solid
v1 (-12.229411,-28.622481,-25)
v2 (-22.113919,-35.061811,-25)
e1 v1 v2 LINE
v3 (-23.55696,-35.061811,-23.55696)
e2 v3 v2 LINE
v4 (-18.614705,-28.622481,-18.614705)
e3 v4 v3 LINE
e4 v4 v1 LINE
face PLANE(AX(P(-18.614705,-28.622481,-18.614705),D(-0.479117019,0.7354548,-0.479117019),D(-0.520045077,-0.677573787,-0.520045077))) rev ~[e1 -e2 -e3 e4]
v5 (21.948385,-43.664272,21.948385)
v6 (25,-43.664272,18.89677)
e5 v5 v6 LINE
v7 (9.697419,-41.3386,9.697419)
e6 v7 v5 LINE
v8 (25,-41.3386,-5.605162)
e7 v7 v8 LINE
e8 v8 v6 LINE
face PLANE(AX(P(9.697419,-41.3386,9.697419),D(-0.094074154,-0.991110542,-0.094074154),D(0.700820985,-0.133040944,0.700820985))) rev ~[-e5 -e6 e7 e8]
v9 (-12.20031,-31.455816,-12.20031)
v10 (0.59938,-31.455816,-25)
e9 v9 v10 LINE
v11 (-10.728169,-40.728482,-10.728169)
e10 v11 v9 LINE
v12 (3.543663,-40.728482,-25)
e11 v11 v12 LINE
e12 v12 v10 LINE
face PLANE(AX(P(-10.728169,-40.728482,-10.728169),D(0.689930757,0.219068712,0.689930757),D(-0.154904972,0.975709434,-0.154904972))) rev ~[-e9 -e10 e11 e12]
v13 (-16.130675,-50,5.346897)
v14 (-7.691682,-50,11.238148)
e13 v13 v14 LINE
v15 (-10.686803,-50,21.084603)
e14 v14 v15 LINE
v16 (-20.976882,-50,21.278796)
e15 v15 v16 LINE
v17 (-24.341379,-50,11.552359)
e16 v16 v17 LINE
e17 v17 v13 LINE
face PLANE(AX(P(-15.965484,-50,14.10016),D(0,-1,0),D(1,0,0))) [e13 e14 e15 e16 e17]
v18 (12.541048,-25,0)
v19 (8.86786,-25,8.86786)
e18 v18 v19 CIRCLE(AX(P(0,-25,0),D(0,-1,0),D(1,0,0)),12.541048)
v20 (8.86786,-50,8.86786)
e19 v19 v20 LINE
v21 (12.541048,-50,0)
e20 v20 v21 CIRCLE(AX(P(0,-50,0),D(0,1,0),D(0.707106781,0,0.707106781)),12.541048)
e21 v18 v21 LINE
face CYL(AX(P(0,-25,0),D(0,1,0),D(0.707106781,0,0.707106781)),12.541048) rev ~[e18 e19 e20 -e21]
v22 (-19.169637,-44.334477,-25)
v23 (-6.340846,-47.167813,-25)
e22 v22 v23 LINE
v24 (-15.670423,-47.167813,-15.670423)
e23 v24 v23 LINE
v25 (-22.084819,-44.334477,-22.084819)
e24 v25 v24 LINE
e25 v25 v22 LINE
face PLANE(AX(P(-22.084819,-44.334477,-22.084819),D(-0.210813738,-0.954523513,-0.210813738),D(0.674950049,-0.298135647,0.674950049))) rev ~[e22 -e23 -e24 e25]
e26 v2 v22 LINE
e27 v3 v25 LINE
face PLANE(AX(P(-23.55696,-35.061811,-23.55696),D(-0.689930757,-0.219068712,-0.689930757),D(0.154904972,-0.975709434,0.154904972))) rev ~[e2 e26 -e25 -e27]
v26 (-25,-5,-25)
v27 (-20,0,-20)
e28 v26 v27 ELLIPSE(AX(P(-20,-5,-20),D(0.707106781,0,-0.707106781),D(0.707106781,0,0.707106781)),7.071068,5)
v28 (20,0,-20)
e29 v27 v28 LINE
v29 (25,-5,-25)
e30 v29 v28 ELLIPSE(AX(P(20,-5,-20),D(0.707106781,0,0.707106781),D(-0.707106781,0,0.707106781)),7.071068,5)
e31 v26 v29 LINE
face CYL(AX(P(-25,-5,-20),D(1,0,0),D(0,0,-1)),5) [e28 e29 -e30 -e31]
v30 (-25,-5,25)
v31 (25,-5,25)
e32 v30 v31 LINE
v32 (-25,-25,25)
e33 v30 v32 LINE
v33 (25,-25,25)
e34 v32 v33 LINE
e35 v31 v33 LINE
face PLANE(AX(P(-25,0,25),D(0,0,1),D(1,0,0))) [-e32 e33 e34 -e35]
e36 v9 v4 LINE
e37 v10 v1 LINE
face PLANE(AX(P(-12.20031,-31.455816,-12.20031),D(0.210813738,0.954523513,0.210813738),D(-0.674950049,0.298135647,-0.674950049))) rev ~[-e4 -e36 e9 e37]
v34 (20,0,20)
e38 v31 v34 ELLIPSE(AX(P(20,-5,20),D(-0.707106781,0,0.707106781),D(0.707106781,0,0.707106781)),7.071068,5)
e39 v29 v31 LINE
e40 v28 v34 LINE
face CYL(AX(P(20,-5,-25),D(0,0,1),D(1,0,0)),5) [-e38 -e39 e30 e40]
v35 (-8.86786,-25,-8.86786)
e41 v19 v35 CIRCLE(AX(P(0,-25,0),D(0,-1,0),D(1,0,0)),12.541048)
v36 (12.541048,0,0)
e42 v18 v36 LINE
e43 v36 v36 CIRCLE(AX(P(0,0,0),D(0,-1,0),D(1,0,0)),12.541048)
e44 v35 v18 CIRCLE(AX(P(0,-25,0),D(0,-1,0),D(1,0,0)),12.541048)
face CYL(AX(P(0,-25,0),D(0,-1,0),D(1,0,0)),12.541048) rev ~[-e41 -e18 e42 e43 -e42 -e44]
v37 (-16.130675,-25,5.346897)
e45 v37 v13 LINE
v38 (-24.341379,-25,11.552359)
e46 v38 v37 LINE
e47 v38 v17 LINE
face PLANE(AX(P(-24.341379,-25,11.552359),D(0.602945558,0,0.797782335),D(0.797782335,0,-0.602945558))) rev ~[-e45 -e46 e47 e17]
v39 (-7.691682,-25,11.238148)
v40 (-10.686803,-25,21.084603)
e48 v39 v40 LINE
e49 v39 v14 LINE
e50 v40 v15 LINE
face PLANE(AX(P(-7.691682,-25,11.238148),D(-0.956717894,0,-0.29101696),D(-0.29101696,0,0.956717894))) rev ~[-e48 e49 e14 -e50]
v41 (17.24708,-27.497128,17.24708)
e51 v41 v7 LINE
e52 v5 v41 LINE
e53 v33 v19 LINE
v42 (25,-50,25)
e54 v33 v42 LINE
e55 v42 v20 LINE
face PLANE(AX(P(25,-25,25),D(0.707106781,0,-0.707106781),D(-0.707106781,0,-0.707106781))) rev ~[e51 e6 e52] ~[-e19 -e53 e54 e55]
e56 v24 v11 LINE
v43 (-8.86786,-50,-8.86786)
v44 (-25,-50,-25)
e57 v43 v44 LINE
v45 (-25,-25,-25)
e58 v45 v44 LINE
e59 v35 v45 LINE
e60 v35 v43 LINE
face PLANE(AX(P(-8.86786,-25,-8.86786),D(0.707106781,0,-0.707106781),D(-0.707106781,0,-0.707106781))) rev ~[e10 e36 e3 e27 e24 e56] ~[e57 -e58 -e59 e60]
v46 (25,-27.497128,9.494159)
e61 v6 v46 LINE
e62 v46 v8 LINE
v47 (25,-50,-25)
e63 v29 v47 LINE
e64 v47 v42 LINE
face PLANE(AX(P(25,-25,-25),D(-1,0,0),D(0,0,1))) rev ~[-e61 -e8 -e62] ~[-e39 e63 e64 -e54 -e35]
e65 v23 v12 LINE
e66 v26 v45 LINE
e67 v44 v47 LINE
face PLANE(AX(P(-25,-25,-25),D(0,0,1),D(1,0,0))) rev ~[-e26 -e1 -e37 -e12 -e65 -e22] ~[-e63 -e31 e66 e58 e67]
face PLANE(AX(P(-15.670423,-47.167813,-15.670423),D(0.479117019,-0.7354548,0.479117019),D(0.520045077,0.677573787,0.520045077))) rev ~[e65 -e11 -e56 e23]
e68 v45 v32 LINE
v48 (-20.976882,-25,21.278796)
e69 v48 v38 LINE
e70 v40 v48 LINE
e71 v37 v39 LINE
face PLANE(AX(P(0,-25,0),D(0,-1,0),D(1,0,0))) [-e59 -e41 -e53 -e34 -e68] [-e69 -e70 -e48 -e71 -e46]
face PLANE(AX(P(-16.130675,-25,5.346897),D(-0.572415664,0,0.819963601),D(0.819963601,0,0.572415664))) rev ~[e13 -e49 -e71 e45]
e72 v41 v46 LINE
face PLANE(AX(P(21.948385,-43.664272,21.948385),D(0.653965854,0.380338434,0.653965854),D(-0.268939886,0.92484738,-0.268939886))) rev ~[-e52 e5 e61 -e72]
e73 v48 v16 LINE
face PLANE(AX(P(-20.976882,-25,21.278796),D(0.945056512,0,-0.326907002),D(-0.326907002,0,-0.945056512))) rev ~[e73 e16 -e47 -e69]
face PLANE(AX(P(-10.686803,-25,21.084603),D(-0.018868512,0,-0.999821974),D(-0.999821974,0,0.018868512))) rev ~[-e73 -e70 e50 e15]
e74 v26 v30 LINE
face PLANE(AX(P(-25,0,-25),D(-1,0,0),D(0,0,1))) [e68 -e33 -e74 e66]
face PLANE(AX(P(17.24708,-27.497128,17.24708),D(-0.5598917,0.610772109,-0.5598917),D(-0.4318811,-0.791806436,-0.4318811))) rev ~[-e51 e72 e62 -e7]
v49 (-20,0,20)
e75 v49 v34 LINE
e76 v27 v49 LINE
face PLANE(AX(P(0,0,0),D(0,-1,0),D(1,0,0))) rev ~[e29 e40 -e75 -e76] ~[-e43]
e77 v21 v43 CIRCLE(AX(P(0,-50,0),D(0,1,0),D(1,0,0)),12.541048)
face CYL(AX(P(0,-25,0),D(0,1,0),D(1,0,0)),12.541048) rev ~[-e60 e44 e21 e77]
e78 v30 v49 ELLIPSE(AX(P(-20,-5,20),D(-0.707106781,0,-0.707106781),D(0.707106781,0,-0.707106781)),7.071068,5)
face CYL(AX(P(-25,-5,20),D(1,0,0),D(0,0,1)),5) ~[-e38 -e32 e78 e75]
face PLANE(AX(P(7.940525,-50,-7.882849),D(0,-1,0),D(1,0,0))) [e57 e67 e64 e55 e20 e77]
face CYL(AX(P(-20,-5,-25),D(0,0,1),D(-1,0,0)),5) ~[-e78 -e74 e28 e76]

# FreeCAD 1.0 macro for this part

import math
import FreeCAD as App
import Part
import Sketcher

V = App.Vector
Q = App.Units.Quantity


def edges_at(feature, points):
    """Names of the edges that pass closest to the given points."""
    edges = feature.Shape.Edges
    near = lambda p: min(range(len(edges)), key=lambda i: edges[i].distToShape(Part.Vertex(*p))[0])
    return sorted({f"Edge{near(p) + 1}" for p in points})

doc = App.newDocument("Part")
body = doc.addObject("PartDesign::Body", "Body")

sketch1 = doc.addObject("Sketcher::SketchObject", "Sketch")
body.addObject(sketch1)
sketch1.AttachmentSupport = (doc.XZ_Plane, [""])
sketch1.MapMode = "FlatFace"
sketch1.addGeometry([
    Part.LineSegment(V(-25, 25, 0), V(-25, -25, 0)),
    Part.LineSegment(V(-25, -25, 0), V(25, -25, 0)),
    Part.LineSegment(V(25, -25, 0), V(25, 25, 0)),
    Part.LineSegment(V(25, 25, 0), V(-25, 25, 0)),
], False)
sketch1.addConstraint([
    Sketcher.Constraint("Coincident", 0, 2, 1, 1),
    Sketcher.Constraint("Coincident", 1, 2, 2, 1),
    Sketcher.Constraint("Coincident", 2, 2, 3, 1),
    Sketcher.Constraint("Coincident", 3, 2, 0, 1),
    Sketcher.Constraint("Vertical", 0),
    Sketcher.Constraint("Horizontal", 1),
    Sketcher.Constraint("Vertical", 2),
    Sketcher.Constraint("Horizontal", 3),
    Sketcher.Constraint("Symmetric", 0, 2, 2, 2, -1, 1),
    Sketcher.Constraint("Equal", 3, 0),
    Sketcher.Constraint("DistanceX", 1, 1, 1, 2, 50.0),
])
pad1 = doc.addObject("PartDesign::Pad", "Pad")
body.addObject(pad1)
pad1.Profile = sketch1
pad1.Length = 25

sketch2 = doc.addObject("Sketcher::SketchObject", "Sketch001")
body.addObject(sketch2)
sketch2.AttachmentSupport = (doc.XZ_Plane, [""])
sketch2.MapMode = "FlatFace"
sketch2.AttachmentOffset = App.Placement(V(0, 0, 25), App.Rotation())
sketch2.addGeometry(Part.Circle(V(0, 0, 0), V(0, 0, 1), 13), False)
sketch2.addConstraint([
    Sketcher.Constraint("Coincident", 0, 3, -1, 1),
    Sketcher.Constraint("Diameter", 0, 25.082095),
])
pocket1 = doc.addObject("PartDesign::Pocket", "Pocket")
body.addObject(pocket1)
pocket1.Profile = sketch2
pocket1.Length = 25

sketch3 = doc.addObject("Sketcher::SketchObject", "Sketch002")
body.addObject(sketch3)
sketch3.AttachmentSupport = (doc.XZ_Plane, [""])
sketch3.MapMode = "FlatFace"
sketch3.AttachmentOffset = App.Placement(V(0, 0, 25), App.Rotation())
sketch3.addGeometry([
    Part.LineSegment(V(-9, -9, 0), V(-25, -25, 0)),
    Part.LineSegment(V(-25, -25, 0), V(25, -25, 0)),
    Part.LineSegment(V(25, -25, 0), V(25, 25, 0)),
    Part.LineSegment(V(25, 25, 0), V(9, 9, 0)),
    Part.ArcOfCircle(Part.Circle(V(0, 0, 0), V(0, 0, 1), 13), math.radians(0), math.radians(45)),
    Part.ArcOfCircle(Part.Circle(V(0, 0, 0), V(0, 0, 1), 13), math.radians(-135), math.radians(0)),
], False)
sketch3.addConstraint([
    Sketcher.Constraint("Coincident", 0, 2, 1, 1),
    Sketcher.Constraint("Coincident", 1, 2, 2, 1),
    Sketcher.Constraint("Coincident", 2, 2, 3, 1),
    Sketcher.Constraint("Coincident", 3, 2, 4, 2),
    Sketcher.Constraint("Tangent", 4, 1, 5, 2),
    Sketcher.Constraint("Coincident", 5, 1, 0, 1),
    Sketcher.Constraint("Horizontal", 1),
    Sketcher.Constraint("Vertical", 2),
    Sketcher.Constraint("Coincident", 4, 3, -1, 1),
    Sketcher.Constraint("Equal", 4, 5),
    Sketcher.Constraint("Symmetric", 0, 2, 2, 2, -1, 1),
    Sketcher.Constraint("PointOnObject", 4, 1, -1),
    Sketcher.Constraint("Parallel", 0, 3),
    Sketcher.Constraint("Equal", 1, 2),
    Sketcher.Constraint("DistanceX", 1, 1, 1, 2, 50.0),
    Sketcher.Constraint("Angle", 0, Q("-135 deg")),
    Sketcher.Constraint("Radius", 4, 12.541048),
])
pad2 = doc.addObject("PartDesign::Pad", "Pad001")
body.addObject(pad2)
pad2.Profile = sketch3
pad2.Length = 25

sketch4 = doc.addObject("Sketcher::SketchObject", "Sketch003")
body.addObject(sketch4)
sketch4.Placement = App.Placement(V(0, 0, 0), App.Rotation(V(0, -1, 0), V(0.707106781, 0, 0.707106781), V(-0.707106781, 0, 0.707106781), "ZXY"))
sketch4.addGeometry([
    Part.LineSegment(V(29, -26, 0), V(35, -33, 0)),
    Part.LineSegment(V(35, -33, 0), V(44, -31, 0)),
    Part.LineSegment(V(44, -31, 0), V(47, -22, 0)),
    Part.LineSegment(V(47, -22, 0), V(41, -15, 0)),
    Part.LineSegment(V(41, -15, 0), V(31, -17, 0)),
    Part.LineSegment(V(31, -17, 0), V(29, -26, 0)),
    Part.LineSegment(V(27, 24, 0), V(41, 14, 0)),
    Part.LineSegment(V(41, 14, 0), V(44, 31, 0)),
    Part.LineSegment(V(44, 31, 0), V(27, 24, 0)),
], False)
sketch4.addConstraint([
    Sketcher.Constraint("Coincident", 0, 2, 1, 1),
    Sketcher.Constraint("Coincident", 1, 2, 2, 1),
    Sketcher.Constraint("Coincident", 2, 2, 3, 1),
    Sketcher.Constraint("Coincident", 3, 2, 4, 1),
    Sketcher.Constraint("Coincident", 4, 2, 5, 1),
    Sketcher.Constraint("Coincident", 5, 2, 0, 1),
    Sketcher.Constraint("Coincident", 6, 2, 7, 1),
    Sketcher.Constraint("Coincident", 7, 2, 8, 1),
    Sketcher.Constraint("Coincident", 8, 2, 6, 1),
    Sketcher.Constraint("Parallel", 0, 3),
    Sketcher.Constraint("Parallel", 1, 4),
    Sketcher.Constraint("Parallel", 2, 5),
    Sketcher.Constraint("Equal", 0, 1),
    Sketcher.Constraint("Equal", 1, 2),
    Sketcher.Constraint("Equal", 2, 3),
    Sketcher.Constraint("Equal", 6, 7),
    Sketcher.Constraint("Equal", 7, 8),
    Sketcher.Constraint("DistanceX", 0, 2, 2, 2, 12.106001),
    Sketcher.Constraint("DistanceX", -1, 1, 6, 2, 41.3386),
    Sketcher.Constraint("Distance", 0, 9.503511),
    Sketcher.Constraint("DistanceX", -1, 1, 0, 2, 35.061811),
    Sketcher.Constraint("DistanceY", 0, 2, -1, 1, 33.314572),
    Sketcher.Constraint("DistanceY", 1, 2, -1, 1, 31.23265),
    Sketcher.Constraint("DistanceY", 3, 2, -1, 1, 15.171922),
    Sketcher.Constraint("DistanceY", -1, 1, 6, 2, 13.714221),
    Sketcher.Constraint("DistanceX", -1, 1, 8, 2, 27.497128),
    Sketcher.Constraint("DistanceX", 3, 2, 7, 2, 2.93579),
])
pocket2 = doc.addObject("PartDesign::Pocket", "Pocket001")
body.addObject(pocket2)
pocket2.Profile = sketch4
pocket2.Length = 50

sketch5 = doc.addObject("Sketcher::SketchObject", "Sketch004")
body.addObject(sketch5)
sketch5.AttachmentSupport = (doc.XZ_Plane, [""])
sketch5.MapMode = "FlatFace"
sketch5.AttachmentOffset = App.Placement(V(0, 0, 25), App.Rotation())
sketch5.addGeometry([
    Part.LineSegment(V(-21, 21, 0), V(-24, 12, 0)),
    Part.LineSegment(V(-24, 12, 0), V(-16, 5, 0)),
    Part.LineSegment(V(-16, 5, 0), V(-8, 11, 0)),
    Part.LineSegment(V(-8, 11, 0), V(-11, 21, 0)),
    Part.LineSegment(V(-11, 21, 0), V(-21, 21, 0)),
], False)
sketch5.addConstraint([
    Sketcher.Constraint("Coincident", 0, 2, 1, 1),
    Sketcher.Constraint("Coincident", 1, 2, 2, 1),
    Sketcher.Constraint("Coincident", 2, 2, 3, 1),
    Sketcher.Constraint("Coincident", 3, 2, 4, 1),
    Sketcher.Constraint("Coincident", 4, 2, 0, 1),
    Sketcher.Constraint("Equal", 0, 1),
    Sketcher.Constraint("Equal", 1, 2),
    Sketcher.Constraint("Equal", 2, 3),
    Sketcher.Constraint("Equal", 3, 4),
    Sketcher.Constraint("DistanceY", 1, 2, 4, 2, 15.931899),
    Sketcher.Constraint("DistanceX", 4, 2, 2, 2, 13.285199),
    Sketcher.Constraint("Distance", 0, 10.291911),
    Sketcher.Constraint("DistanceX", 0, 2, -1, 1, 24.341379),
    Sketcher.Constraint("DistanceY", -1, 1, 0, 2, 11.552359),
    Sketcher.Constraint("DistanceX", 4, 2, -1, 1, 20.976882),
])
pad3 = doc.addObject("PartDesign::Pad", "Pad002")
body.addObject(pad3)
pad3.Profile = sketch5
pad3.Length = 25
doc.recompute()

fillet = doc.addObject("PartDesign::Fillet", "Fillet")
body.addObject(fillet)
fillet.Base = (pad3, edges_at(pad3, [
    (25, 0, 0),
    (0, 0, 25),
    (-25, 0, 0),
    (0, 0, -25),
]))
fillet.Radius = 5

doc.recompute()
